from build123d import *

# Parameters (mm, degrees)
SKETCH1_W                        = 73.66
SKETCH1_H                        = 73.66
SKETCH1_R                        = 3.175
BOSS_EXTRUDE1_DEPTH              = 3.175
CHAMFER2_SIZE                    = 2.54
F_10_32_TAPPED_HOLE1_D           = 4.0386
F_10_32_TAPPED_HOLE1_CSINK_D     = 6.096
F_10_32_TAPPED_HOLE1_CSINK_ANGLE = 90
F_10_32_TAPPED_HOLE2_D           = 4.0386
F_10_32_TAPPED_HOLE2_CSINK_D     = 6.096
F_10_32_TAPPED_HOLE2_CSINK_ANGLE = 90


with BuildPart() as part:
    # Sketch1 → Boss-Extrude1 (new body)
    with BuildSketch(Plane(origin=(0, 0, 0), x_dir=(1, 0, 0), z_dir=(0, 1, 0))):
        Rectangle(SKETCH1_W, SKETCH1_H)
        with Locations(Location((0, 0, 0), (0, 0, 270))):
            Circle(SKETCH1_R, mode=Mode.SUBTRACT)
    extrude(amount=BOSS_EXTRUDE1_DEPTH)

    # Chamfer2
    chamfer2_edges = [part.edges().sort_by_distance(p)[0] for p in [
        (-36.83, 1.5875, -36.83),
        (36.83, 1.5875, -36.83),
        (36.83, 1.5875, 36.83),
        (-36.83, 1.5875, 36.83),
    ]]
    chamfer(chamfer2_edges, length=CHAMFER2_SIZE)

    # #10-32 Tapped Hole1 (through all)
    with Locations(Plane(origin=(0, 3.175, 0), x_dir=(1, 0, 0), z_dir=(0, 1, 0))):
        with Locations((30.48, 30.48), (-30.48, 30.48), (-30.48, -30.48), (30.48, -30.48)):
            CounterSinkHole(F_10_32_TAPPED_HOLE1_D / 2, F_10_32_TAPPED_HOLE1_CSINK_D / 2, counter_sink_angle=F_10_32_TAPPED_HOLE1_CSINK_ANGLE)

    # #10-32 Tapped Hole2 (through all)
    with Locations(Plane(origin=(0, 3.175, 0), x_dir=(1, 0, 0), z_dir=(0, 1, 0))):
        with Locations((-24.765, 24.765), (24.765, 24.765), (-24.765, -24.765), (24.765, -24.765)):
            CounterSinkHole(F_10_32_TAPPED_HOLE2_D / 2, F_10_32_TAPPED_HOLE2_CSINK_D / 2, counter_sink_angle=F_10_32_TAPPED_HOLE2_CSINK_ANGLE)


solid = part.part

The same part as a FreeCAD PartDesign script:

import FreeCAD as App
import Part
import Sketcher

V = App.Vector
Q = App.Units.Quantity


def edges_at(feature, points):
    """Names of the edges that pass closest to the given points."""
    edges = feature.Shape.Edges
    near = lambda p: min(range(len(edges)), key=lambda i: edges[i].distToShape(Part.Vertex(*p))[0])
    return sorted({f"Edge{near(p) + 1}" for p in points})


def add_polygon(sketch, points):
    """Adds a closed chain of lines whose ends are joined by coincident constraints."""
    first, n = sketch.GeometryCount, len(points)
    for a, b in zip(points, points[1:] + points[:1]):
        sketch.addGeometry(Part.LineSegment(App.Vector(*a, 0), App.Vector(*b, 0)), False)
    for i in range(n):
        sketch.addConstraint(Sketcher.Constraint("Coincident", first + i, 2, first + (i + 1) % n, 1))

doc = App.newDocument("Part")
body = doc.addObject("PartDesign::Body", "Body")

# Sketch on XZ plane
sketch1 = body.newObject("Sketcher::SketchObject", "Sketch")
sketch1.AttachmentSupport = (doc.getObject("XZ_Plane"), [""])
sketch1.MapMode = "FlatFace"
add_polygon(sketch1, [(-36.8, -36.8), (-36.8, 36.8), (36.8, 36.8), (36.8, -36.8)])  # lines 0-3
sketch1.addGeometry(Part.Circle(V(0, 0, 0), V(0, 0, 1), 3.2), False)  # 4
sketch1.addConstraint(Sketcher.Constraint("Vertical", 0))
sketch1.addConstraint(Sketcher.Constraint("Horizontal", 1))
sketch1.addConstraint(Sketcher.Constraint("Vertical", 2))
sketch1.addConstraint(Sketcher.Constraint("Horizontal", 3))
sketch1.addConstraint(Sketcher.Constraint("Coincident", 4, 3, -1, 1))
sketch1.addConstraint(Sketcher.Constraint("Symmetric", 0, 2, 2, 2, -1, 1))
sketch1.addConstraint(Sketcher.Constraint("Equal", 3, 0))
sketch1.addConstraint(Sketcher.Constraint("Diameter", 4, Q("0.25 in")))
sketch1.addConstraint(Sketcher.Constraint("DistanceX", 1, 1, 1, 2, Q("2.9 in")))
pad1 = body.newObject("PartDesign::Pad", "Pad")
pad1.Profile = sketch1
pad1.Length = Q("0.125 in")
pad1.Reversed = True
doc.recompute()

chamfer = body.newObject("PartDesign::Chamfer", "Chamfer")
chamfer.Base = (pad1, edges_at(pad1, [
    (-36.83, 1.587, -36.83),
    (36.83, 1.587, -36.83),
    (36.83, 1.587, 36.83),
    (-36.83, 1.587, 36.83),
]))
chamfer.Size = Q("0.1 in")

# Sketch on XZ plane
sketch2 = body.newObject("Sketcher::SketchObject", "Sketch001")
sketch2.AttachmentSupport = (doc.getObject("XZ_Plane"), [""])
sketch2.MapMode = "FlatFace"
sketch2.AttachmentOffset = App.Placement(V(0, 0, -0.125 * 25.4), App.Rotation())
sketch2.addGeometry(Part.Circle(V(30.5, -30.5, 0), V(0, 0, 1), 2), False)
sketch2.addGeometry(Part.Circle(V(-30.5, -30.5, 0), V(0, 0, 1), 2), False)
sketch2.addGeometry(Part.Circle(V(-30.5, 30.5, 0), V(0, 0, 1), 2), False)
sketch2.addGeometry(Part.Circle(V(30.5, 30.5, 0), V(0, 0, 1), 2), False)
sketch2.addConstraint(Sketcher.Constraint("Equal", 0, 1))
sketch2.addConstraint(Sketcher.Constraint("Equal", 1, 2))
sketch2.addConstraint(Sketcher.Constraint("Equal", 2, 3))
sketch2.addConstraint(Sketcher.Constraint("Symmetric", 0, 3, 2, 3, -1, 1))
sketch2.addConstraint(Sketcher.Constraint("Symmetric", 1, 3, 3, 3, -1, 1))
sketch2.addConstraint(Sketcher.Constraint("Symmetric", 0, 3, 1, 3, -2))
sketch2.addConstraint(Sketcher.Constraint("Diameter", 0, Q("0.159 in")))
sketch2.addConstraint(Sketcher.Constraint("DistanceX", -1, 1, 0, 3, Q("1.2 in")))
sketch2.addConstraint(Sketcher.Constraint("DistanceY", 0, 3, -1, 1, Q("1.2 in")))
doc.recompute()
hole = body.newObject("PartDesign::Hole", "Hole")
hole.Profile = sketch2
hole.ThreadType = "None"
hole.Diameter = Q("0.159 in")
hole.DepthType = "ThroughAll"
hole.HoleCutType = "Countersink"
hole.HoleCutDiameter = Q("0.24 in")
hole.HoleCutCountersinkAngle = 90
hole.Reversed = True

# Sketch on XZ plane
sketch3 = body.newObject("Sketcher::SketchObject", "Sketch002")
sketch3.AttachmentSupport = (doc.getObject("XZ_Plane"), [""])
sketch3.MapMode = "FlatFace"
sketch3.AttachmentOffset = App.Placement(V(0, 0, -0.125 * 25.4), App.Rotation())
sketch3.addGeometry(Part.Circle(V(-24.8, -24.8, 0), V(0, 0, 1), 2), False)
sketch3.addGeometry(Part.Circle(V(24.8, -24.8, 0), V(0, 0, 1), 2), False)
sketch3.addGeometry(Part.Circle(V(-24.8, 24.8, 0), V(0, 0, 1), 2), False)
sketch3.addGeometry(Part.Circle(V(24.8, 24.8, 0), V(0, 0, 1), 2), False)
sketch3.addConstraint(Sketcher.Constraint("Equal", 0, 1))
sketch3.addConstraint(Sketcher.Constraint("Equal", 1, 2))
sketch3.addConstraint(Sketcher.Constraint("Equal", 2, 3))
sketch3.addConstraint(Sketcher.Constraint("Symmetric", 1, 3, 2, 3, -1, 1))
sketch3.addConstraint(Sketcher.Constraint("Symmetric", 0, 3, 3, 3, -1, 1))
sketch3.addConstraint(Sketcher.Constraint("Symmetric", 0, 3, 1, 3, -2))
sketch3.addConstraint(Sketcher.Constraint("Diameter", 0, Q("0.159 in")))
sketch3.addConstraint(Sketcher.Constraint("DistanceX", 0, 3, 1, 3, Q("1.95 in")))
sketch3.addConstraint(Sketcher.Constraint("DistanceY", 0, 3, 2, 3, Q("1.95 in")))
doc.recompute()
hole2 = body.newObject("PartDesign::Hole", "Hole001")
hole2.Profile = sketch3
hole2.ThreadType = "None"
hole2.Diameter = Q("0.159 in")
hole2.DepthType = "ThroughAll"
hole2.HoleCutType = "Countersink"
hole2.HoleCutDiameter = Q("0.24 in")
hole2.HoleCutCountersinkAngle = 90
hole2.Reversed = True

doc.recompute()
